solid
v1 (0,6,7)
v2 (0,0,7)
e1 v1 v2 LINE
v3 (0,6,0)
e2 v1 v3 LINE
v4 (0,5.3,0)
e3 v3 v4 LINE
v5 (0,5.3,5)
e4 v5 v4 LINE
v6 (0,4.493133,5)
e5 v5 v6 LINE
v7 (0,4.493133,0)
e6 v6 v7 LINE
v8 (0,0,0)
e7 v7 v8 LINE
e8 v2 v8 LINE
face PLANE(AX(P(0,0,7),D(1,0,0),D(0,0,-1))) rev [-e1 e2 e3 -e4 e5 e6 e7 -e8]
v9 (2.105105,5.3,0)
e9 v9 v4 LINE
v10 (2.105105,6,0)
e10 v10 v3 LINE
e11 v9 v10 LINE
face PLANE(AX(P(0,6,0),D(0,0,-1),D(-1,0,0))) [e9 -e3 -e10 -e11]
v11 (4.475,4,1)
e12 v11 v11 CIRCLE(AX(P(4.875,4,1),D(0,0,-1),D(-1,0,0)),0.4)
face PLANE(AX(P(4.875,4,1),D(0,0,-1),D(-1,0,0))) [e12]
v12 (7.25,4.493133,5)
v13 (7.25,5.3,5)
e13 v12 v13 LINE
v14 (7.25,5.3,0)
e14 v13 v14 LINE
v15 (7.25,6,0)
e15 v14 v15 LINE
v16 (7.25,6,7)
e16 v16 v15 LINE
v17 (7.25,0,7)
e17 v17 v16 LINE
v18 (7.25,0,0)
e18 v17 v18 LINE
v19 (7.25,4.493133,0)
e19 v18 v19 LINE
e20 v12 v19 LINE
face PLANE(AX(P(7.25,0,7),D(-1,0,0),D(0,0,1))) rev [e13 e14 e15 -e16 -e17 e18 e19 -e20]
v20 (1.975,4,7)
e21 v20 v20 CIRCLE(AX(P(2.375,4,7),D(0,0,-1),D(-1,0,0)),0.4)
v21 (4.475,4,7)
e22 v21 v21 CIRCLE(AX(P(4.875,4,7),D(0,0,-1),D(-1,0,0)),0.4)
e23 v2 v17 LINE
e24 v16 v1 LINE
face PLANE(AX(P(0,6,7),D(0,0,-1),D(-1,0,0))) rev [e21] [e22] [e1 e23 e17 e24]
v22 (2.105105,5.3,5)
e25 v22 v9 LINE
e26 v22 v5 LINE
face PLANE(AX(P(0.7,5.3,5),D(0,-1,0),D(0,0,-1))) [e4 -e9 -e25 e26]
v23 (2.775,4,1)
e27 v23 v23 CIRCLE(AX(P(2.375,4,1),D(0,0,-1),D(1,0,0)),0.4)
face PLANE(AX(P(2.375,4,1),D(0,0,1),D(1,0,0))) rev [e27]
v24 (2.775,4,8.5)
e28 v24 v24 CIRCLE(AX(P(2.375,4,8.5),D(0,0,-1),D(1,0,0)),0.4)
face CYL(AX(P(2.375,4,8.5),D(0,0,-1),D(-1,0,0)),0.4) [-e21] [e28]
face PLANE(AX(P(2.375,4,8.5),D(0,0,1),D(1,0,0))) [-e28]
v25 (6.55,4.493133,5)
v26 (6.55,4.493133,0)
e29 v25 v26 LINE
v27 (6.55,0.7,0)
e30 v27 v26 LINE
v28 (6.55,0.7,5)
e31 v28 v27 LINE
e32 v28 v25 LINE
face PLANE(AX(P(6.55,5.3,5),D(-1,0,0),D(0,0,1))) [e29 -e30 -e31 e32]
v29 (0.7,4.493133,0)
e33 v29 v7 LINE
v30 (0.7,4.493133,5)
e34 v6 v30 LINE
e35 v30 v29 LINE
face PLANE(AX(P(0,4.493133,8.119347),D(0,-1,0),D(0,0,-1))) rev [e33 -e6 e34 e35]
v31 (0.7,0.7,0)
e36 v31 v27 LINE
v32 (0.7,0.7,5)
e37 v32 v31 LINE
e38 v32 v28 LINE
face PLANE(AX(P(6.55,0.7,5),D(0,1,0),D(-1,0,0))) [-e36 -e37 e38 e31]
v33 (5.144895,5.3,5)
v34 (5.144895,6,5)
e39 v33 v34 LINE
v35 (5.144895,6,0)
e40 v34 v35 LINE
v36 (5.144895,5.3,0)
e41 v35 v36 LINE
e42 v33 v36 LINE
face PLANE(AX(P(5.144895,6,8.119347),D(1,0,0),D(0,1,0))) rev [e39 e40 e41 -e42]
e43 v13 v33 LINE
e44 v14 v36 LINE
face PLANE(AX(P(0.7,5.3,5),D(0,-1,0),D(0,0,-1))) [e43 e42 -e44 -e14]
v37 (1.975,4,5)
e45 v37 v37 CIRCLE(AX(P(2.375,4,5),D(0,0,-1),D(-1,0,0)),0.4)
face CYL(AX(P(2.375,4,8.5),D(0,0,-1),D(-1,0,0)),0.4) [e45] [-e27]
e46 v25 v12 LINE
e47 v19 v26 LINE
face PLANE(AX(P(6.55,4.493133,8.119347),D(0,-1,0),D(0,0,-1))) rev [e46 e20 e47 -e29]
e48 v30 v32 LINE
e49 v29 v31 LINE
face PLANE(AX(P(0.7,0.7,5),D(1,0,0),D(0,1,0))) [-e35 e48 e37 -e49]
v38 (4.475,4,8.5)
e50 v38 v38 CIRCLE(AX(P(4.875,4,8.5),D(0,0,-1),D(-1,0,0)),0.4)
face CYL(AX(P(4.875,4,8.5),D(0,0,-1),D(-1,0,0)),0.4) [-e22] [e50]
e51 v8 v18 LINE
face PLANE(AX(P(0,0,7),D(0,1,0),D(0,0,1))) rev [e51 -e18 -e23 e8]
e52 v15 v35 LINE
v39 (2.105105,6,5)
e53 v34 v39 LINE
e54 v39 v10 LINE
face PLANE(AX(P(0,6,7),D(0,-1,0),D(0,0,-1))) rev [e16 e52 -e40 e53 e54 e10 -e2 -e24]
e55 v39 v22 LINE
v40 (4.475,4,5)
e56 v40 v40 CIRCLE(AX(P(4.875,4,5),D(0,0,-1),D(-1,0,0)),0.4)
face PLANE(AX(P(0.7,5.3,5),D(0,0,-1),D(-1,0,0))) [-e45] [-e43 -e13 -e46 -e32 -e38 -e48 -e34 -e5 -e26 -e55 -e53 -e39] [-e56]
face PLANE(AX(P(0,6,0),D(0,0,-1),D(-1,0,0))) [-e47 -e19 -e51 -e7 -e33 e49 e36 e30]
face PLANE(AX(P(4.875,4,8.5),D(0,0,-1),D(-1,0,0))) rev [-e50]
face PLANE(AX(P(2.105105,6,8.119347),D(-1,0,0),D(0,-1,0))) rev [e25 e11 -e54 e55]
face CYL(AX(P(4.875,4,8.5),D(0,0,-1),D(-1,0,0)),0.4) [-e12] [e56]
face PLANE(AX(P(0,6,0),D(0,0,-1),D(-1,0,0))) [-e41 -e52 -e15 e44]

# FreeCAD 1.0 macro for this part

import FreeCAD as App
import Part
import Sketcher
Q = App.Units.Quantity


def add_polygon(sketch, points):
    """Adds a closed chain of lines whose ends are joined by coincident constraints."""
    first, n = sketch.GeometryCount, len(points)
    for a, b in zip(points, points[1:] + points[:1]):
        sketch.addGeometry(Part.LineSegment(App.Vector(*a, 0), App.Vector(*b, 0)), False)
    for i in range(n):
        sketch.addConstraint(Sketcher.Constraint("Coincident", first + i, 2, first + (i + 1) % n, 1))

doc = App.newDocument("Part")
params = doc.addObject("Spreadsheet::Sheet", "Params")
for row, (alias, value) in enumerate([
    ("sketch1_height", "6 mm"),
    ("sketch1_width", "7.25 mm"),
    ("pad1_length", "7 mm"),
    ("sketch2_height", "4.6 mm"),
    ("sketch2_width", "5.85 mm"),
    ("pocket1_length", "5 mm"),
    ("sketch3_width", "0.7 mm"),
    ("pocket2_length", "5 mm"),
    ("sketch4_diameter", "0.8 mm"),
    ("pad2_length", "4 mm"),
    ("pad2_length2", "3.5 mm"),
], start=1):
    params.set(f"A{row}", alias)
    params.set(f"B{row}", "=" + value)
    params.setAlias(f"B{row}", alias)

body = doc.addObject("PartDesign::Body", "Body")

# Sketch on XY plane
sketch1 = body.newObject("Sketcher::SketchObject", "Sketch")
sketch1.AttachmentSupport = (doc.getObject("XY_Plane"), [""])
sketch1.MapMode = "FlatFace"
add_polygon(sketch1, [(0, 6), (0, 0), (7, 0), (7, 6)])  # lines 0-3
sketch1.addConstraint([
    Sketcher.Constraint("Vertical", 0),
    Sketcher.Constraint("Horizontal", 1),
    Sketcher.Constraint("Vertical", 2),
    Sketcher.Constraint("Horizontal", 3),
    Sketcher.Constraint("Coincident", 0, 2, -1, 1),
    Sketcher.Constraint("DistanceY", 0, 2, 0, 1, Q("6 mm")),
    Sketcher.Constraint("DistanceX", 1, 1, 1, 2, Q("7.25 mm")),
])
sketch1.setExpression("Constraints[9]", "Params.sketch1_height")
sketch1.setExpression("Constraints[10]", "Params.sketch1_width")
pad1 = body.newObject("PartDesign::Pad", "Pad")
pad1.Profile = sketch1
pad1.setExpression("Length", "Params.pad1_length")

# Sketch on XY plane
sketch2 = body.newObject("Sketcher::SketchObject", "Sketch001")
sketch2.AttachmentSupport = (doc.getObject("XY_Plane"), [""])
sketch2.MapMode = "FlatFace"
add_polygon(sketch2, [(0.7, 5.3), (0.7, 0.7), (6.5, 0.7), (6.5, 5.3)])  # lines 0-3
sketch2.addConstraint([
    Sketcher.Constraint("Vertical", 0),
    Sketcher.Constraint("Horizontal", 1),
    Sketcher.Constraint("Vertical", 2),
    Sketcher.Constraint("Horizontal", 3),
    Sketcher.Constraint("DistanceY", 0, 2, 0, 1, Q("4.6 mm")),
    Sketcher.Constraint("DistanceX", 1, 1, 1, 2, Q("5.85 mm")),
    Sketcher.Constraint("DistanceX", -1, 1, 0, 2, Q("0.7 mm")),
    Sketcher.Constraint("DistanceY", -1, 1, 0, 2, Q("0.7 mm")),
])
sketch2.setExpression("Constraints[8]", "Params.sketch2_height")
sketch2.setExpression("Constraints[9]", "Params.sketch2_width")
pocket1 = body.newObject("PartDesign::Pocket", "Pocket")
pocket1.Profile = sketch2
pocket1.setExpression("Length", "Params.pocket1_length")
pocket1.Reversed = True

# Sketch on XY plane
sketch3 = body.newObject("Sketcher::SketchObject", "Sketch002")
sketch3.AttachmentSupport = (doc.getObject("XY_Plane"), [""])
sketch3.MapMode = "FlatFace"
add_polygon(sketch3, [(7.2, 5.3), (7.2, 4.5), (6.5, 4.5), (6.5, 5.3)])  # lines 0-3
add_polygon(sketch3, [(0.7, 5.3), (0.7, 4.5), (0, 4.5), (0, 5.3)])  # lines 4-7
add_polygon(sketch3, [(5.1, 6), (5.1, 5.3), (2.1, 5.3), (2.1, 6)])  # lines 8-11
sketch3.addConstraint([
    Sketcher.Constraint("Vertical", 0),
    Sketcher.Constraint("Horizontal", 1),
    Sketcher.Constraint("Vertical", 2),
    Sketcher.Constraint("Horizontal", 3),
    Sketcher.Constraint("Vertical", 4),
    Sketcher.Constraint("Horizontal", 5),
    Sketcher.Constraint("Vertical", 6),
    Sketcher.Constraint("Horizontal", 7),
    Sketcher.Constraint("Vertical", 8),
    Sketcher.Constraint("Horizontal", 9),
    Sketcher.Constraint("Vertical", 10),
    Sketcher.Constraint("Horizontal", 11),
    Sketcher.Constraint("PointOnObject", 5, 2, -2),
    Sketcher.Constraint("Horizontal", 1, 2, 4, 2),
    Sketcher.Constraint("Horizontal", 3, 2, 6, 2),
    Sketcher.Constraint("Horizontal", 7, 2, 8, 2),
    Sketcher.Constraint("Equal", 3, 5),
    Sketcher.Constraint("Equal", 7, 8),
    Sketcher.Constraint("DistanceX", 1, 2, 1, 1, Q("0.7 mm")),
    Sketcher.Constraint("DistanceY", -1, 1, 10, 2, Q("6 mm")),
    Sketcher.Constraint("DistanceX", -1, 1, 0, 2, Q("7.25 mm")),
    Sketcher.Constraint("DistanceX", 9, 2, 9, 1, Q("3.03979 mm")),
    Sketcher.Constraint("DistanceY", 0, 2, 0, 1, Q("0.806867 mm")),
    Sketcher.Constraint("DistanceX", -1, 1, 8, 2, Q("5.144895 mm")),
])
sketch3.setExpression("Constraints[30]", "Params.sketch3_width")
pocket2 = body.newObject("PartDesign::Pocket", "Pocket001")
pocket2.Profile = sketch3
pocket2.setExpression("Length", "Params.pocket2_length")
pocket2.Reversed = True

# Sketch on XY plane
sketch4 = body.newObject("Sketcher::SketchObject", "Sketch003")
sketch4.AttachmentSupport = (doc.getObject("XY_Plane"), [""])
sketch4.MapMode = "FlatFace"
sketch4.AttachmentOffset = App.Placement(App.Vector(0, 0, 5), App.Rotation())
sketch4.addGeometry([
    Part.Circle(App.Vector(4.88, 4, 0), App.Vector(0, 0, 1), 0.4),
    Part.Circle(App.Vector(2.38, 4, 0), App.Vector(0, 0, 1), 0.4),
], False)
sketch4.addConstraint([
    Sketcher.Constraint("Equal", 0, 1),
    Sketcher.Constraint("Horizontal", 0, 3, 1, 3),
    Sketcher.Constraint("Diameter", 0, Q("0.8 mm")),
    Sketcher.Constraint("DistanceY", -1, 1, 0, 3, Q("4 mm")),
    Sketcher.Constraint("DistanceX", 1, 3, 0, 3, Q("2.5 mm")),
    Sketcher.Constraint("DistanceX", -1, 1, 0, 3, Q("4.875 mm")),
])
sketch4.setExpression("Constraints[2]", "Params.sketch4_diameter")
pad2 = body.newObject("PartDesign::Pad", "Pad001")
pad2.Profile = sketch4
pad2.Type = "TwoLengths"
pad2.setExpression("Length", "Params.pad2_length")
pad2.setExpression("Length2", "Params.pad2_length2")
pad2.Reversed = True

doc.recompute()
